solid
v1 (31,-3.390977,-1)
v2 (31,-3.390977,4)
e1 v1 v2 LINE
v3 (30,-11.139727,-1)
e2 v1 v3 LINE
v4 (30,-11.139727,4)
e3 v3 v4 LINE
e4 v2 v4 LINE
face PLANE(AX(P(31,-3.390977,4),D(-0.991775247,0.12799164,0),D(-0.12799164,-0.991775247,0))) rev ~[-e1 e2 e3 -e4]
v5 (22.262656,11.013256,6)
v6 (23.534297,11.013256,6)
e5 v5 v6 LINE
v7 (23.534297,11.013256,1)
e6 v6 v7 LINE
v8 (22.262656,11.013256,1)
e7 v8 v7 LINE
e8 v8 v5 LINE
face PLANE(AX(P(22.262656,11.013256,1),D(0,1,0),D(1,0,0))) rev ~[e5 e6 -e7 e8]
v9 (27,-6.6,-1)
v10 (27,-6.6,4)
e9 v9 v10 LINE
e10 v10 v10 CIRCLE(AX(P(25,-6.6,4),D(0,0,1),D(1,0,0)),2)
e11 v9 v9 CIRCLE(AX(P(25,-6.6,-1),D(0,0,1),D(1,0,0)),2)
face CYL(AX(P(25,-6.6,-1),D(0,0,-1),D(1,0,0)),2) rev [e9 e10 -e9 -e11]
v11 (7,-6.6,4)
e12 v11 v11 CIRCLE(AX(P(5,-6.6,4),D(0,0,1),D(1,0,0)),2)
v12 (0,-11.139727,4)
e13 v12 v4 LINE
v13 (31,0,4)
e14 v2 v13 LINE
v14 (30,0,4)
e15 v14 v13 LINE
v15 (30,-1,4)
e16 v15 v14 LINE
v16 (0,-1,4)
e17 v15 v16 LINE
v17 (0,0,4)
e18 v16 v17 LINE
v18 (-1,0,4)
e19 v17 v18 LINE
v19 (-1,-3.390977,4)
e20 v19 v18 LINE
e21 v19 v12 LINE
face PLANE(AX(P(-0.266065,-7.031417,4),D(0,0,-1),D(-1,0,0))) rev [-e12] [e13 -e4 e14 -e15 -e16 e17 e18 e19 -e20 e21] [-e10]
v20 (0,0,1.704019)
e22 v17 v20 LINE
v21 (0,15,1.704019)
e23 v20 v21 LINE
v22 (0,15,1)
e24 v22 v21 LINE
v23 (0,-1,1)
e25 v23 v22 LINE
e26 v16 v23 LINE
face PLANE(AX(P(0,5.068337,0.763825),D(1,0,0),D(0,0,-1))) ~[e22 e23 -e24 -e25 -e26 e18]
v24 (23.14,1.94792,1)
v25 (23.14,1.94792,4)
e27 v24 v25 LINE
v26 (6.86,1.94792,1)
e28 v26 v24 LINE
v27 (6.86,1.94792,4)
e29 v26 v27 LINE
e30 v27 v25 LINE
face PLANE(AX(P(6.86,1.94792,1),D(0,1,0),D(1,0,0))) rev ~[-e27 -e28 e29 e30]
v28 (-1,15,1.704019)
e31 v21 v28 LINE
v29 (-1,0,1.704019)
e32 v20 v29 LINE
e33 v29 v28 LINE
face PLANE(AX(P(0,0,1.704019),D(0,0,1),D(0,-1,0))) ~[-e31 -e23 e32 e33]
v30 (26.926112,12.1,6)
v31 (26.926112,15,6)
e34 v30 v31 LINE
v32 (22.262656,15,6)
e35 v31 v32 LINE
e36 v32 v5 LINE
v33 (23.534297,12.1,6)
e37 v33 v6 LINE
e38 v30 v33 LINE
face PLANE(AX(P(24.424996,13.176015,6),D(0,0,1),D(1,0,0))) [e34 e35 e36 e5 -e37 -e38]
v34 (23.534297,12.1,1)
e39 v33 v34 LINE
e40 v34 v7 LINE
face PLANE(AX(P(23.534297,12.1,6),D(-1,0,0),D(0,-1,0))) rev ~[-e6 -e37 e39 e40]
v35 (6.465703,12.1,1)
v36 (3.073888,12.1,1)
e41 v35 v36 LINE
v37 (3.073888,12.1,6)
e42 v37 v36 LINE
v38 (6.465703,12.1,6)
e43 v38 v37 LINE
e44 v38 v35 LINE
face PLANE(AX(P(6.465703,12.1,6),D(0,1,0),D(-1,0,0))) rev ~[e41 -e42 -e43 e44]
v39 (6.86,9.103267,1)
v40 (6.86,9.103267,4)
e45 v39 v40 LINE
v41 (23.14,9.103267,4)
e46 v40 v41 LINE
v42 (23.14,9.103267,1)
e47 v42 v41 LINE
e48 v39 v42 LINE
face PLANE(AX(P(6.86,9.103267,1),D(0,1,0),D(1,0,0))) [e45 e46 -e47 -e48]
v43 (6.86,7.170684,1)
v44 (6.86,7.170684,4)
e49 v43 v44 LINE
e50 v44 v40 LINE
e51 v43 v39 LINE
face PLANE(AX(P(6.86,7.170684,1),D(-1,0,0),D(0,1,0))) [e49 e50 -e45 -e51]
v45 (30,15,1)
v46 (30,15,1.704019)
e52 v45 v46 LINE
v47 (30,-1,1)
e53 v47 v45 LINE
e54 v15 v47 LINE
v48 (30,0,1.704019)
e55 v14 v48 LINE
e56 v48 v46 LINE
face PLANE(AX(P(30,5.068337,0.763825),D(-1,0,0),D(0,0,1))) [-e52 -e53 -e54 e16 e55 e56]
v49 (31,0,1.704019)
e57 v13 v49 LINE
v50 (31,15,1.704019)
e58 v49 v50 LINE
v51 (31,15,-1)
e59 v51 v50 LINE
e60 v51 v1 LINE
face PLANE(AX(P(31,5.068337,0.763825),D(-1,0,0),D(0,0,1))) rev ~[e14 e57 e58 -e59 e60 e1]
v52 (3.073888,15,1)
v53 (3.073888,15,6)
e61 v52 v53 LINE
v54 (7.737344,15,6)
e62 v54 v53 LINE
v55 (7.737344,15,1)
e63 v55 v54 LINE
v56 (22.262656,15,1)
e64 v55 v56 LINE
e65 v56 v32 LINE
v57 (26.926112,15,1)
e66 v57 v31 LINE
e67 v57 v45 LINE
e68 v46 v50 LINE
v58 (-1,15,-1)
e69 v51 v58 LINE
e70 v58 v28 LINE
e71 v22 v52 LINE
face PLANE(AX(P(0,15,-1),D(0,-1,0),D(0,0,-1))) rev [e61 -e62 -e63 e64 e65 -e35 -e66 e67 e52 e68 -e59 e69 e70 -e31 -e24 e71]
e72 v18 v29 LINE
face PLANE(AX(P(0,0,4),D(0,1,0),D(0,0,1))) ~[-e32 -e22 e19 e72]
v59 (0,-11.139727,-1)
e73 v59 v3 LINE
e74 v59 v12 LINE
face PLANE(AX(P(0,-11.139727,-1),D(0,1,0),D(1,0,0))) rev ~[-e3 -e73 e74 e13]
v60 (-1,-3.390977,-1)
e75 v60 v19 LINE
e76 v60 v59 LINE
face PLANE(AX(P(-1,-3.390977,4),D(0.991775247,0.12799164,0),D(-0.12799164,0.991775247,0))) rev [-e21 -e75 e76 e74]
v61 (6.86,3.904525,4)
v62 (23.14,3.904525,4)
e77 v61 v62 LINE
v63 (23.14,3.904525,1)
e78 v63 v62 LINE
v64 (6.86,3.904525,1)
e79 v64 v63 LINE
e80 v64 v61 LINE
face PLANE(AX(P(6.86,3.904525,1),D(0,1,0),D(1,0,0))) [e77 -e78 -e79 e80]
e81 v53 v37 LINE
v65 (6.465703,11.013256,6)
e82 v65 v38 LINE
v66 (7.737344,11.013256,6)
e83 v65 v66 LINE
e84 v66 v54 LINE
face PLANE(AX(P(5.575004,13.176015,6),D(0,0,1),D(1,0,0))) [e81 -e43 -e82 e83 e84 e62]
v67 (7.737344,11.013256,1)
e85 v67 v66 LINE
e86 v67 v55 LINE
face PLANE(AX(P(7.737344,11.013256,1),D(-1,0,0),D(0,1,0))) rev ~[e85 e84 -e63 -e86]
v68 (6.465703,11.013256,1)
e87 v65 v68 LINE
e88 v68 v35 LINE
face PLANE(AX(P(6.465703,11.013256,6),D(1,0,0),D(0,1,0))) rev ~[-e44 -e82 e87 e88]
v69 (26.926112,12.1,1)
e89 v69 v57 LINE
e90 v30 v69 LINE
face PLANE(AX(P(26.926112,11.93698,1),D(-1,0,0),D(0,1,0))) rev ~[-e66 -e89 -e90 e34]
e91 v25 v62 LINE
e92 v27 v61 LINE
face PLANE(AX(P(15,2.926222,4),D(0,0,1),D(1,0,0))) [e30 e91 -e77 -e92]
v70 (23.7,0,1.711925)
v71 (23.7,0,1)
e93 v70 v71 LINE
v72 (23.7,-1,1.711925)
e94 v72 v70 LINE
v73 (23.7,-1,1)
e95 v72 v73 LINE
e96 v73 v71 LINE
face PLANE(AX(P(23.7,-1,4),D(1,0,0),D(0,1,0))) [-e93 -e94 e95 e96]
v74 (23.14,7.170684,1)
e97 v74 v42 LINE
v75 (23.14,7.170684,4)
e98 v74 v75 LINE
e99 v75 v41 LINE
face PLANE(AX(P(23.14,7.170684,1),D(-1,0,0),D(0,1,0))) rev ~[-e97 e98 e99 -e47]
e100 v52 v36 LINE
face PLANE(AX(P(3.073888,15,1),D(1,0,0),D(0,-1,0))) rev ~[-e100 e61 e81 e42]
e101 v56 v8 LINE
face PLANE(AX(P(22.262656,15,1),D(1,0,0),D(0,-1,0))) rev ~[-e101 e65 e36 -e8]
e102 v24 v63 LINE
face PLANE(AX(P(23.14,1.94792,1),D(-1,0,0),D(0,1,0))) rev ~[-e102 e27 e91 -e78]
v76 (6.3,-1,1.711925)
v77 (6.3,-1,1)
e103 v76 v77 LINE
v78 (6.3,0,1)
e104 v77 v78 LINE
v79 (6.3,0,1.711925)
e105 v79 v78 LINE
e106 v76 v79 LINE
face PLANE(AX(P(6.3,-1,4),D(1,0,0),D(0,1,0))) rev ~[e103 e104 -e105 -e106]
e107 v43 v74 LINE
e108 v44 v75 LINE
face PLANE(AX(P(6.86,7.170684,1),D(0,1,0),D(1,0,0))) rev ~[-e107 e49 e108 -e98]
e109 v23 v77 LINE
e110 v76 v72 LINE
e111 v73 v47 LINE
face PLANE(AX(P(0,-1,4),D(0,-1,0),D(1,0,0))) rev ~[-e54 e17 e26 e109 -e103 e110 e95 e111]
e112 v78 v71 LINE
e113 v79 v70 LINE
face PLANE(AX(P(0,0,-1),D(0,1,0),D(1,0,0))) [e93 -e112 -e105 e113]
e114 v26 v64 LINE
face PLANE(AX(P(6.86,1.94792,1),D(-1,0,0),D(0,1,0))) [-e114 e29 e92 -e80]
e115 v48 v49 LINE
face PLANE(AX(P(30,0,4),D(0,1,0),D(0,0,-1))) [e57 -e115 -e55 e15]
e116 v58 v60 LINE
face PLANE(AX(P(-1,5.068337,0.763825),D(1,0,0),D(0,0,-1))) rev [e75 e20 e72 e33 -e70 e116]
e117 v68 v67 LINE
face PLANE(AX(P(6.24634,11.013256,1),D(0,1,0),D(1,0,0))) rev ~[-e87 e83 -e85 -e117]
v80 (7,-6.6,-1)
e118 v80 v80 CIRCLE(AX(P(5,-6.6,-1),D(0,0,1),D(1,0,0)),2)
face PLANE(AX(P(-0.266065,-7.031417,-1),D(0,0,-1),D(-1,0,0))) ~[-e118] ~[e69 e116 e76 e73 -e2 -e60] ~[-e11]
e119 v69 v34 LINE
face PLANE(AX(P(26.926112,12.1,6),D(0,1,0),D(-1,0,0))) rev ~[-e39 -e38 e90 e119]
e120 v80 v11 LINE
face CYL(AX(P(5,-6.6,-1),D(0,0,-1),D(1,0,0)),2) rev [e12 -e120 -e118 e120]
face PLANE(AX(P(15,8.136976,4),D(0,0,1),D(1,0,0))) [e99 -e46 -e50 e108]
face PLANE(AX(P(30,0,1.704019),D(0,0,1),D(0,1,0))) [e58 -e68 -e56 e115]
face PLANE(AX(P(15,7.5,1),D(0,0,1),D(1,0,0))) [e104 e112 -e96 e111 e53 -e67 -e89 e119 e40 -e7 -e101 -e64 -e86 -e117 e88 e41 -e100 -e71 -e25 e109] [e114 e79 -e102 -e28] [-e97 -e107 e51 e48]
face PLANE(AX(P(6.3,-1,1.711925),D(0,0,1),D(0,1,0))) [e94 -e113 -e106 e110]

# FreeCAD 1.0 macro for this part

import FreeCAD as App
import Part
import Sketcher


def add_polygon(sketch, points):
    """Adds a closed chain of lines whose ends are joined by coincident constraints."""
    first, n = sketch.GeometryCount, len(points)
    for a, b in zip(points, points[1:] + points[:1]):
        sketch.addGeometry(Part.LineSegment(App.Vector(*a, 0), App.Vector(*b, 0)), False)
    for i in range(n):
        sketch.addConstraint(Sketcher.Constraint("Coincident", first + i, 2, first + (i + 1) % n, 1))

doc = App.newDocument("Part")
params = doc.addObject("Spreadsheet::Sheet", "Params")
for row, (alias, value) in enumerate([
    ("sketch1_width", "30 mm"),
    ("sketch1_height", "15 mm"),
    ("pad1_length", "2 mm"),
    ("sketch2_diameter", "4 mm"),
    ("sketch2_width", "30 mm"),
    ("pad2_length", "3 mm"),
    ("pad2_length2", "2 mm"),
    ("sketch3_height", "1 mm"),
    ("sketch3_width", "6.3 mm"),
    ("pocket1_length", "3 mm"),
    ("sketch4_width", "15 mm"),
    ("sketch4_height", "5 mm"),
    ("pad3_length", "1 mm"),
    ("sketch5_width", "1 mm"),
    ("pad4_length", "5 mm"),
    ("sketch6_width", "1 mm"),
    ("pad5_length", "5 mm"),
    ("sketch8_width", "16.28 mm"),
    ("pad6_length", "3 mm"),
    ("pocket3_length", "5 mm"),
], start=1):
    params.set(f"A{row}", alias)
    params.set(f"B{row}", "=" + value)
    params.setAlias(f"B{row}", alias)

body = doc.addObject("PartDesign::Body", "Body")

# Sketch on XY plane
sketch1 = body.newObject("Sketcher::SketchObject", "Sketch")
sketch1.AttachmentSupport = (doc.getObject("XY_Plane"), [""])
sketch1.MapMode = "FlatFace"
add_polygon(sketch1, [(0, 15), (0, 0), (30, 0), (30, 15)])  # lines 0-3
sketch1.addConstraint([
    Sketcher.Constraint("Vertical", 0),
    Sketcher.Constraint("Horizontal", 1),
    Sketcher.Constraint("Vertical", 2),
    Sketcher.Constraint("Horizontal", 3),
    Sketcher.Constraint("Coincident", 0, 2, -1, 1),
    Sketcher.Constraint("DistanceX", 1, 1, 1, 2, 30.0),
    Sketcher.Constraint("DistanceY", 0, 2, 0, 1, 15.0),
])
sketch1.setExpression("Constraints[9]", "Params.sketch1_width")
sketch1.setExpression("Constraints[10]", "Params.sketch1_height")
pad1 = body.newObject("PartDesign::Pad", "Pad")
pad1.Profile = sketch1
pad1.setExpression("Length", "Params.pad1_length")
pad1.Midplane = True

# Sketch on XY plane
sketch2 = body.newObject("Sketcher::SketchObject", "Sketch001")
sketch2.AttachmentSupport = (doc.getObject("XY_Plane"), [""])
sketch2.MapMode = "FlatFace"
sketch2.AttachmentOffset = App.Placement(App.Vector(0, 0, 1), App.Rotation())
add_polygon(sketch2, [(0, 0), (0, -11.1), (30, -11.1), (30, 0)])  # lines 0-3
sketch2.addGeometry(Part.Circle(App.Vector(5, -6.6, 0), App.Vector(0, 0, 1), 2), False)  # 4
sketch2.addGeometry(Part.Circle(App.Vector(25, -6.6, 0), App.Vector(0, 0, 1), 2), False)  # 5
sketch2.addConstraint([
    Sketcher.Constraint("Vertical", 0),
    Sketcher.Constraint("Horizontal", 1),
    Sketcher.Constraint("Vertical", 2),
    Sketcher.Constraint("Horizontal", 3),
    Sketcher.Constraint("Coincident", 3, 2, -1, 1),
    Sketcher.Constraint("Equal", 4, 5),
    Sketcher.Constraint("Horizontal", 4, 3, 5, 3),
    Sketcher.Constraint("Diameter", 4, 4.0),
    Sketcher.Constraint("DistanceX", 1, 1, 1, 2, 30.0),
    Sketcher.Constraint("DistanceX", -1, 1, 4, 3, 5.0),
    Sketcher.Constraint("DistanceX", -1, 1, 5, 3, 25.0),
    Sketcher.Constraint("DistanceY", 4, 3, -1, 1, 6.6),
    Sketcher.Constraint("DistanceY", 0, 2, 0, 1, 11.139727),
])
sketch2.setExpression("Constraints[11]", "Params.sketch2_diameter")
sketch2.setExpression("Constraints[12]", "Params.sketch2_width")
pad2 = body.newObject("PartDesign::Pad", "Pad001")
pad2.Profile = sketch2
pad2.Type = "TwoLengths"
pad2.setExpression("Length", "Params.pad2_length")
pad2.setExpression("Length2", "Params.pad2_length2")

# Sketch on XY plane
sketch3 = body.newObject("Sketcher::SketchObject", "Sketch002")
sketch3.AttachmentSupport = (doc.getObject("XY_Plane"), [""])
sketch3.MapMode = "FlatFace"
sketch3.AttachmentOffset = App.Placement(App.Vector(0, 0, 4), App.Rotation())
add_polygon(sketch3, [(23.7, 0), (23.7, -1), (30, -1), (30, 0)])  # lines 0-3
add_polygon(sketch3, [(0, 0), (0, -1), (6.3, -1), (6.3, 0)])  # lines 4-7
sketch3.addConstraint([
    Sketcher.Constraint("Vertical", 0),
    Sketcher.Constraint("Horizontal", 1),
    Sketcher.Constraint("Vertical", 2),
    Sketcher.Constraint("Horizontal", 3),
    Sketcher.Constraint("Vertical", 4),
    Sketcher.Constraint("Horizontal", 5),
    Sketcher.Constraint("Vertical", 6),
    Sketcher.Constraint("Horizontal", 7),
    Sketcher.Constraint("Coincident", 7, 2, -1, 1),
    Sketcher.Constraint("PointOnObject", 2, 2, -1),
    Sketcher.Constraint("Horizontal", 1, 2, 4, 2),
    Sketcher.Constraint("Equal", 3, 5),
    Sketcher.Constraint("DistanceY", 0, 2, 0, 1, 1.0),
    Sketcher.Constraint("DistanceX", 1, 1, 1, 2, 6.3),
    Sketcher.Constraint("DistanceX", -1, 1, 1, 2, 30.0),
])
sketch3.setExpression("Constraints[20]", "Params.sketch3_height")
sketch3.setExpression("Constraints[21]", "Params.sketch3_width")
pocket1 = body.newObject("PartDesign::Pocket", "Pocket")
pocket1.Profile = sketch3
pocket1.setExpression("Length", "Params.pocket1_length")

# Sketch on YZ plane
sketch4 = body.newObject("Sketcher::SketchObject", "Sketch003")
sketch4.AttachmentSupport = (doc.getObject("YZ_Plane"), [""])
sketch4.MapMode = "FlatFace"
sketch4.AttachmentOffset = App.Placement(App.Vector(0, 0, 30), App.Rotation())
add_polygon(sketch4, [(15, 1.7), (0, 1.7), (0, 4), (-3.4, 4), (-3.4, -1), (15, -1)])  # lines 0-5
sketch4.addConstraint([
    Sketcher.Constraint("Horizontal", 0),
    Sketcher.Constraint("Vertical", 1),
    Sketcher.Constraint("Horizontal", 2),
    Sketcher.Constraint("Vertical", 3),
    Sketcher.Constraint("Horizontal", 4),
    Sketcher.Constraint("Vertical", 5),
    Sketcher.Constraint("PointOnObject", 0, 2, -2),
    Sketcher.Constraint("DistanceX", 0, 2, 0, 1, 15.0),
    Sketcher.Constraint("DistanceY", 3, 2, 3, 1, 5.0),
    Sketcher.Constraint("DistanceY", -1, 1, 1, 2, 4.0),
    Sketcher.Constraint("DistanceY", 1, 1, 1, 2, 2.295981),
    Sketcher.Constraint("DistanceX", 2, 2, 2, 1, 3.390977),
])
sketch4.setExpression("Constraints[13]", "Params.sketch4_width")
sketch4.setExpression("Constraints[14]", "Params.sketch4_height")
pad3 = body.newObject("PartDesign::Pad", "Pad002")
pad3.Profile = sketch4
pad3.setExpression("Length", "Params.pad3_length")

# Sketch on XY plane
sketch5 = body.newObject("Sketcher::SketchObject", "Sketch004")
sketch5.AttachmentSupport = (doc.getObject("XY_Plane"), [""])
sketch5.MapMode = "FlatFace"
sketch5.AttachmentOffset = App.Placement(App.Vector(0, 0, 4), App.Rotation())
add_polygon(sketch5, [(30, -11.1), (31, -3.4), (30, -3.4)])  # lines 0-2
sketch5.addConstraint([
    Sketcher.Constraint("Horizontal", 1),
    Sketcher.Constraint("Vertical", 2),
    Sketcher.Constraint("DistanceX", 1, 2, 1, 1, 1.0),
    Sketcher.Constraint("DistanceX", -1, 1, 0, 2, 31.0),
    Sketcher.Constraint("DistanceY", 2, 2, 2, 1, 7.74875),
    Sketcher.Constraint("DistanceY", 0, 2, -1, 1, 3.390977),
])
sketch5.setExpression("Constraints[5]", "Params.sketch5_width")
pad4 = body.newObject("PartDesign::Pad", "Pad003")
pad4.Profile = sketch5
pad4.setExpression("Length", "Params.pad4_length")
pad4.Reversed = True
doc.recompute()

datumplane = body.newObject("PartDesign::Plane", "DatumPlane")
datumplane.AttachmentSupport = (doc.getObject("YZ_Plane"), [""])
datumplane.MapMode = "FlatFace"
datumplane.AttachmentOffset = App.Placement(App.Vector(0, 0, 15), App.Rotation())
mirrored = body.newObject("PartDesign::Mirrored", "Mirrored")
mirrored.Originals = [pad3, pad4]
mirrored.MirrorPlane = (datumplane, [""])
body.Tip = mirrored

# Sketch on YZ plane
sketch6 = body.newObject("Sketcher::SketchObject", "Sketch005")
sketch6.AttachmentSupport = (doc.getObject("YZ_Plane"), [""])
sketch6.MapMode = "FlatFace"
sketch6.AttachmentOffset = App.Placement(App.Vector(0, 0, 6.3), App.Rotation())
add_polygon(sketch6, [(0, 1.7), (-1, 1.7), (-1, 4), (0, 4)])  # lines 0-3
sketch6.addConstraint([
    Sketcher.Constraint("Horizontal", 0),
    Sketcher.Constraint("Vertical", 1),
    Sketcher.Constraint("Horizontal", 2),
    Sketcher.Constraint("Vertical", 3),
    Sketcher.Constraint("PointOnObject", 2, 2, -2),
    Sketcher.Constraint("DistanceX", 0, 2, 0, 1, 1.0),
    Sketcher.Constraint("DistanceY", -1, 1, 1, 2, 4.0),
    Sketcher.Constraint("DistanceY", 1, 1, 1, 2, 2.288075),
])
sketch6.setExpression("Constraints[9]", "Params.sketch6_width")
pocket2 = body.newObject("PartDesign::Pocket", "Pocket001")
pocket2.Profile = sketch6
pocket2.Type = "UpToFirst"
pocket2.Reversed = True

# Sketch on XY plane
sketch7 = body.newObject("Sketcher::SketchObject", "Sketch006")
sketch7.AttachmentSupport = (doc.getObject("XY_Plane"), [""])
sketch7.MapMode = "FlatFace"
sketch7.AttachmentOffset = App.Placement(App.Vector(0, 0, 1), App.Rotation())
add_polygon(sketch7, [(3.1, 15), (3.1, 11.9), (6.2, 11.9), (6.2, 11), (7.7, 11), (7.7, 15)])  # lines 0-5
add_polygon(sketch7, [(22.3, 15), (22.3, 11), (23.8, 11), (23.8, 11.9), (26.9, 11.9), (26.9, 15)])  # lines 6-11
sketch7.addConstraint([
    Sketcher.Constraint("Vertical", 0),
    Sketcher.Constraint("Horizontal", 1),
    Sketcher.Constraint("Vertical", 2),
    Sketcher.Constraint("Horizontal", 3),
    Sketcher.Constraint("Vertical", 4),
    Sketcher.Constraint("Horizontal", 5),
    Sketcher.Constraint("Vertical", 6),
    Sketcher.Constraint("Horizontal", 7),
    Sketcher.Constraint("Vertical", 8),
    Sketcher.Constraint("Horizontal", 9),
    Sketcher.Constraint("Vertical", 10),
    Sketcher.Constraint("Horizontal", 11),
    Sketcher.Constraint("Horizontal", 3, 2, 6, 2),
    Sketcher.Constraint("Horizontal", 1, 2, 8, 2),
    Sketcher.Constraint("Horizontal", 5, 2, 10, 2),
    Sketcher.Constraint("Equal", 3, 7),
    Sketcher.Constraint("Equal", 1, 9),
    Sketcher.Constraint("DistanceY", -1, 1, 4, 2, 15.0),
    Sketcher.Constraint("DistanceX", 1, 1, 1, 2, 3.172452),
    Sketcher.Constraint("DistanceY", 0, 2, 0, 1, 3.06302),
    Sketcher.Constraint("DistanceX", 3, 1, 3, 2, 1.491004),
    Sketcher.Constraint("DistanceY", 2, 2, 2, 1, 0.923724),
    Sketcher.Constraint("DistanceX", -1, 1, 0, 2, 3.073888),
    Sketcher.Constraint("DistanceX", -1, 1, 7, 2, 23.75366),
])
pad5 = body.newObject("PartDesign::Pad", "Pad004")
pad5.Profile = sketch7
pad5.setExpression("Length", "Params.pad5_length")

# Sketch on XY plane
sketch8 = body.newObject("Sketcher::SketchObject", "Sketch007")
sketch8.AttachmentSupport = (doc.getObject("XY_Plane"), [""])
sketch8.MapMode = "FlatFace"
sketch8.AttachmentOffset = App.Placement(App.Vector(0, 0, 1), App.Rotation())
add_polygon(sketch8, [(6.9, 3.9), (6.9, 1.9), (23.1, 1.9), (23.1, 3.9)])  # lines 0-3
add_polygon(sketch8, [(6.9, 9.1), (6.9, 7.2), (23.1, 7.2), (23.1, 9.1)])  # lines 4-7
sketch8.addConstraint([
    Sketcher.Constraint("Vertical", 0),
    Sketcher.Constraint("Horizontal", 1),
    Sketcher.Constraint("Vertical", 2),
    Sketcher.Constraint("Horizontal", 3),
    Sketcher.Constraint("Vertical", 4),
    Sketcher.Constraint("Horizontal", 5),
    Sketcher.Constraint("Vertical", 6),
    Sketcher.Constraint("Horizontal", 7),
    Sketcher.Constraint("Vertical", 3, 2, 4, 2),
    Sketcher.Constraint("Vertical", 2, 2, 5, 2),
    Sketcher.Constraint("DistanceX", 1, 1, 1, 2, 16.28),
    Sketcher.Constraint("DistanceX", -1, 1, 0, 2, 6.86),
    Sketcher.Constraint("DistanceY", 0, 2, 0, 1, 1.956605),
    Sketcher.Constraint("DistanceY", 4, 2, 4, 1, 1.932582),
    Sketcher.Constraint("DistanceY", -1, 1, 0, 2, 1.94792),
    Sketcher.Constraint("DistanceY", 3, 2, 4, 2, 3.26616),
])
sketch8.setExpression("Constraints[18]", "Params.sketch8_width")
pad6 = body.newObject("PartDesign::Pad", "Pad005")
pad6.Profile = sketch8
pad6.setExpression("Length", "Params.pad6_length")

# Sketch on XY plane
sketch9 = body.newObject("Sketcher::SketchObject", "Sketch008")
sketch9.AttachmentSupport = (doc.getObject("XY_Plane"), [""])
sketch9.MapMode = "FlatFace"
sketch9.AttachmentOffset = App.Placement(App.Vector(0, 0, 6), App.Rotation())
add_polygon(sketch9, [(3.07, 11.94), (6.25, 11.94), (6.25, 11.01), (6.47, 11.01), (6.47, 12.1), (3.07, 12.1)])  # lines 0-5
add_polygon(sketch9, [(26.93, 11.94), (26.93, 12.1), (23.53, 12.1), (23.53, 11.01), (23.75, 11.01), (23.75, 11.94)])  # lines 6-11
sketch9.addConstraint([
    Sketcher.Constraint("Horizontal", 0),
    Sketcher.Constraint("Vertical", 1),
    Sketcher.Constraint("Horizontal", 2),
    Sketcher.Constraint("Vertical", 3),
    Sketcher.Constraint("Horizontal", 4),
    Sketcher.Constraint("Vertical", 5),
    Sketcher.Constraint("Vertical", 6),
    Sketcher.Constraint("Horizontal", 7),
    Sketcher.Constraint("Vertical", 8),
    Sketcher.Constraint("Horizontal", 9),
    Sketcher.Constraint("Vertical", 10),
    Sketcher.Constraint("Horizontal", 11),
    Sketcher.Constraint("Horizontal", 4, 2, 6, 2),
    Sketcher.Constraint("Horizontal", 2, 2, 8, 2),
    Sketcher.Constraint("Horizontal", 5, 2, 10, 2),
    Sketcher.Constraint("Equal", 4, 7),
    Sketcher.Constraint("Equal", 2, 9),
    Sketcher.Constraint("DistanceY", -1, 1, 3, 2, 12.1),
    Sketcher.Constraint("DistanceX", 0, 1, 0, 2, 3.172452),
    Sketcher.Constraint("DistanceY", 5, 2, 5, 1, 0.16302),
    Sketcher.Constraint("DistanceX", 2, 1, 2, 2, 0.219363),
    Sketcher.Constraint("DistanceY", 1, 2, 1, 1, 0.923724),
    Sketcher.Constraint("DistanceX", -1, 1, 0, 2, 6.24634),
    Sketcher.Constraint("DistanceX", -1, 1, 6, 2, 26.926112),
])
pocket3 = body.newObject("PartDesign::Pocket", "Pocket002")
pocket3.Profile = sketch9
pocket3.setExpression("Length", "Params.pocket3_length")

doc.recompute()
